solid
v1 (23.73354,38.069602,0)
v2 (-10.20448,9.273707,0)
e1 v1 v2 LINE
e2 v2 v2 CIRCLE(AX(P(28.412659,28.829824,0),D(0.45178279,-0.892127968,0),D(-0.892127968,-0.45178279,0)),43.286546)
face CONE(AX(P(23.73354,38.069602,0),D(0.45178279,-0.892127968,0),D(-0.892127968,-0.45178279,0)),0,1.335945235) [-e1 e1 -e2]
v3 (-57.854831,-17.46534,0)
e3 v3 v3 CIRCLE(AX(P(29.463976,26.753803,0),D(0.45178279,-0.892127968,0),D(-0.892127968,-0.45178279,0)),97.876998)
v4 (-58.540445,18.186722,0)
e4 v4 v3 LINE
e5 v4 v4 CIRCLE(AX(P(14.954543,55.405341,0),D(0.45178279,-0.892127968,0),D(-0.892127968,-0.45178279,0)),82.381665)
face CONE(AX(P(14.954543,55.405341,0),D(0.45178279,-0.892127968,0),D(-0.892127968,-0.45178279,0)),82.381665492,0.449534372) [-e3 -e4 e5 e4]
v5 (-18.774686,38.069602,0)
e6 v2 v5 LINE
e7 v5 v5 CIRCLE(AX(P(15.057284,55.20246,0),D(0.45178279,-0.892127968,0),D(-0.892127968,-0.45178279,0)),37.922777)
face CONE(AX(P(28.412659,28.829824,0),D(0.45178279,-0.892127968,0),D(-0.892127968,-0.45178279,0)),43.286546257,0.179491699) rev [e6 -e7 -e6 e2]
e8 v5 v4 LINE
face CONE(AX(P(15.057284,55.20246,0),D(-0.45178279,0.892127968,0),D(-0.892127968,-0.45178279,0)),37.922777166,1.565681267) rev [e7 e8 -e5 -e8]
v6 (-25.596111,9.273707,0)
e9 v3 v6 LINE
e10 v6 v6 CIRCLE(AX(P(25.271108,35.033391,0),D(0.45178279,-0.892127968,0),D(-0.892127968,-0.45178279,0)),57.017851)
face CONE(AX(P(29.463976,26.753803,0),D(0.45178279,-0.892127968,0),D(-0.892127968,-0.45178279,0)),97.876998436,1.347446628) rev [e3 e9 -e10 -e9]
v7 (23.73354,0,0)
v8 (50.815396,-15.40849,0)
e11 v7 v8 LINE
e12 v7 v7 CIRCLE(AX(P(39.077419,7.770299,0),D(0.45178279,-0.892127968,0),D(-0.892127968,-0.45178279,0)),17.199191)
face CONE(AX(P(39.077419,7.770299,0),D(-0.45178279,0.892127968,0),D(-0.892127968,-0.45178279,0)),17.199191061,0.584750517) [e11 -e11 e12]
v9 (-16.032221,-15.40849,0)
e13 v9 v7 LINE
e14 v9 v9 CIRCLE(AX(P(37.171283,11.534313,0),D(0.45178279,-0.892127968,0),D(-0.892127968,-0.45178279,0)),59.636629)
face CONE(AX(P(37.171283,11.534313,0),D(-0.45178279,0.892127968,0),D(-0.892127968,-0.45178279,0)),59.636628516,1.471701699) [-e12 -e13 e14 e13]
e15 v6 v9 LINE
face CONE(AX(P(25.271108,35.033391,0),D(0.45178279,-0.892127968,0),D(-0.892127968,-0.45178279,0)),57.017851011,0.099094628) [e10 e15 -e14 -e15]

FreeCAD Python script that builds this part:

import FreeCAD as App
import Part
import Sketcher
from FreeCAD import Vector
Q = App.Units.Quantity


def add_polygon(sketch, points):
    """Adds a closed chain of lines whose ends are joined by coincident constraints."""
    first, n = sketch.GeometryCount, len(points)
    for a, b in zip(points, points[1:] + points[:1]):
        sketch.addGeometry(Part.LineSegment(App.Vector(*a, 0), App.Vector(*b, 0)), False)
    for i in range(n):
        sketch.addConstraint(Sketcher.Constraint("Coincident", first + i, 2, first + (i + 1) % n, 1))

doc = App.newDocument("Part")
body = doc.addObject("PartDesign::Body", "Body")

# Sketch on XY plane
sketch1 = body.newObject("Sketcher::SketchObject", "Sketch")
sketch1.AttachmentSupport = (doc.getObject("XY_Plane"), [""])
sketch1.MapMode = "FlatFace"
add_polygon(sketch1, [(-58.540445, 18.186722), (-57.854831, -17.46534), (-25.596111, 9.273707), (-16.032221, -15.40849), (23.73354, 0), (50.815396, -15.40849), (23.73354, 38.069602), (-10.20448, 9.273707), (-18.774686, 38.069602)])  # lines 0-8
sketch1.addGeometry(Part.LineSegment(Vector(14.954543, 55.405341, 0), Vector(50.815396, -15.40849, 0)), True)  # axis
sketch1.addConstraint([
    Sketcher.Constraint("Coincident", 9, 2, 4, 2),
    Sketcher.Constraint("PointOnObject", 3, 2, -1),
    Sketcher.Constraint("Perpendicular", 2, 3),
    Sketcher.Constraint("Parallel", 5, 9),
    Sketcher.Constraint("Horizontal", 2, 2, 4, 2),
    Sketcher.Constraint("Horizontal", 1, 2, 6, 2),
    Sketcher.Constraint("Horizontal", 5, 2, 7, 2),
    Sketcher.Constraint("Vertical", 3, 2, 5, 2),
    Sketcher.Constraint("Distance", 1, Q("41.8999 mm")),
    Sketcher.Constraint("Distance", 2, Q("26.470339 mm")),
    Sketcher.Constraint("Distance", 5, Q("59.944418 mm")),
    Sketcher.Constraint("Distance", 8, Q("44.45947 mm")),
    Sketcher.Constraint("DistanceX", 0, 2, -1, 1, Q("57.854831 mm")),
    Sketcher.Constraint("DistanceY", 0, 2, -1, 1, Q("17.46534 mm")),
    Sketcher.Constraint("DistanceX", 1, 2, -1, 1, Q("25.596111 mm")),
    Sketcher.Constraint("DistanceX", 2, 2, -1, 1, Q("16.032221 mm")),
    Sketcher.Constraint("DistanceX", 6, 2, -1, 1, Q("10.20448 mm")),
    Sketcher.Constraint("DistanceY", -1, 1, 8, 2, Q("18.186722 mm")),
    Sketcher.Constraint("DistanceY", -1, 1, 9, 1, Q("55.405341 mm")),
    Sketcher.Constraint("DistanceY", 4, 2, 5, 2, Q("53.478092 mm")),
    Sketcher.Constraint("DistanceX", 7, 2, 9, 1, Q("33.729229 mm")),
])
revolution = body.newObject("PartDesign::Revolution", "Revolution")
revolution.Profile = sketch1
revolution.ReferenceAxis = (sketch1, ["Axis0"])
revolution.Angle = 360

doc.recompute()
